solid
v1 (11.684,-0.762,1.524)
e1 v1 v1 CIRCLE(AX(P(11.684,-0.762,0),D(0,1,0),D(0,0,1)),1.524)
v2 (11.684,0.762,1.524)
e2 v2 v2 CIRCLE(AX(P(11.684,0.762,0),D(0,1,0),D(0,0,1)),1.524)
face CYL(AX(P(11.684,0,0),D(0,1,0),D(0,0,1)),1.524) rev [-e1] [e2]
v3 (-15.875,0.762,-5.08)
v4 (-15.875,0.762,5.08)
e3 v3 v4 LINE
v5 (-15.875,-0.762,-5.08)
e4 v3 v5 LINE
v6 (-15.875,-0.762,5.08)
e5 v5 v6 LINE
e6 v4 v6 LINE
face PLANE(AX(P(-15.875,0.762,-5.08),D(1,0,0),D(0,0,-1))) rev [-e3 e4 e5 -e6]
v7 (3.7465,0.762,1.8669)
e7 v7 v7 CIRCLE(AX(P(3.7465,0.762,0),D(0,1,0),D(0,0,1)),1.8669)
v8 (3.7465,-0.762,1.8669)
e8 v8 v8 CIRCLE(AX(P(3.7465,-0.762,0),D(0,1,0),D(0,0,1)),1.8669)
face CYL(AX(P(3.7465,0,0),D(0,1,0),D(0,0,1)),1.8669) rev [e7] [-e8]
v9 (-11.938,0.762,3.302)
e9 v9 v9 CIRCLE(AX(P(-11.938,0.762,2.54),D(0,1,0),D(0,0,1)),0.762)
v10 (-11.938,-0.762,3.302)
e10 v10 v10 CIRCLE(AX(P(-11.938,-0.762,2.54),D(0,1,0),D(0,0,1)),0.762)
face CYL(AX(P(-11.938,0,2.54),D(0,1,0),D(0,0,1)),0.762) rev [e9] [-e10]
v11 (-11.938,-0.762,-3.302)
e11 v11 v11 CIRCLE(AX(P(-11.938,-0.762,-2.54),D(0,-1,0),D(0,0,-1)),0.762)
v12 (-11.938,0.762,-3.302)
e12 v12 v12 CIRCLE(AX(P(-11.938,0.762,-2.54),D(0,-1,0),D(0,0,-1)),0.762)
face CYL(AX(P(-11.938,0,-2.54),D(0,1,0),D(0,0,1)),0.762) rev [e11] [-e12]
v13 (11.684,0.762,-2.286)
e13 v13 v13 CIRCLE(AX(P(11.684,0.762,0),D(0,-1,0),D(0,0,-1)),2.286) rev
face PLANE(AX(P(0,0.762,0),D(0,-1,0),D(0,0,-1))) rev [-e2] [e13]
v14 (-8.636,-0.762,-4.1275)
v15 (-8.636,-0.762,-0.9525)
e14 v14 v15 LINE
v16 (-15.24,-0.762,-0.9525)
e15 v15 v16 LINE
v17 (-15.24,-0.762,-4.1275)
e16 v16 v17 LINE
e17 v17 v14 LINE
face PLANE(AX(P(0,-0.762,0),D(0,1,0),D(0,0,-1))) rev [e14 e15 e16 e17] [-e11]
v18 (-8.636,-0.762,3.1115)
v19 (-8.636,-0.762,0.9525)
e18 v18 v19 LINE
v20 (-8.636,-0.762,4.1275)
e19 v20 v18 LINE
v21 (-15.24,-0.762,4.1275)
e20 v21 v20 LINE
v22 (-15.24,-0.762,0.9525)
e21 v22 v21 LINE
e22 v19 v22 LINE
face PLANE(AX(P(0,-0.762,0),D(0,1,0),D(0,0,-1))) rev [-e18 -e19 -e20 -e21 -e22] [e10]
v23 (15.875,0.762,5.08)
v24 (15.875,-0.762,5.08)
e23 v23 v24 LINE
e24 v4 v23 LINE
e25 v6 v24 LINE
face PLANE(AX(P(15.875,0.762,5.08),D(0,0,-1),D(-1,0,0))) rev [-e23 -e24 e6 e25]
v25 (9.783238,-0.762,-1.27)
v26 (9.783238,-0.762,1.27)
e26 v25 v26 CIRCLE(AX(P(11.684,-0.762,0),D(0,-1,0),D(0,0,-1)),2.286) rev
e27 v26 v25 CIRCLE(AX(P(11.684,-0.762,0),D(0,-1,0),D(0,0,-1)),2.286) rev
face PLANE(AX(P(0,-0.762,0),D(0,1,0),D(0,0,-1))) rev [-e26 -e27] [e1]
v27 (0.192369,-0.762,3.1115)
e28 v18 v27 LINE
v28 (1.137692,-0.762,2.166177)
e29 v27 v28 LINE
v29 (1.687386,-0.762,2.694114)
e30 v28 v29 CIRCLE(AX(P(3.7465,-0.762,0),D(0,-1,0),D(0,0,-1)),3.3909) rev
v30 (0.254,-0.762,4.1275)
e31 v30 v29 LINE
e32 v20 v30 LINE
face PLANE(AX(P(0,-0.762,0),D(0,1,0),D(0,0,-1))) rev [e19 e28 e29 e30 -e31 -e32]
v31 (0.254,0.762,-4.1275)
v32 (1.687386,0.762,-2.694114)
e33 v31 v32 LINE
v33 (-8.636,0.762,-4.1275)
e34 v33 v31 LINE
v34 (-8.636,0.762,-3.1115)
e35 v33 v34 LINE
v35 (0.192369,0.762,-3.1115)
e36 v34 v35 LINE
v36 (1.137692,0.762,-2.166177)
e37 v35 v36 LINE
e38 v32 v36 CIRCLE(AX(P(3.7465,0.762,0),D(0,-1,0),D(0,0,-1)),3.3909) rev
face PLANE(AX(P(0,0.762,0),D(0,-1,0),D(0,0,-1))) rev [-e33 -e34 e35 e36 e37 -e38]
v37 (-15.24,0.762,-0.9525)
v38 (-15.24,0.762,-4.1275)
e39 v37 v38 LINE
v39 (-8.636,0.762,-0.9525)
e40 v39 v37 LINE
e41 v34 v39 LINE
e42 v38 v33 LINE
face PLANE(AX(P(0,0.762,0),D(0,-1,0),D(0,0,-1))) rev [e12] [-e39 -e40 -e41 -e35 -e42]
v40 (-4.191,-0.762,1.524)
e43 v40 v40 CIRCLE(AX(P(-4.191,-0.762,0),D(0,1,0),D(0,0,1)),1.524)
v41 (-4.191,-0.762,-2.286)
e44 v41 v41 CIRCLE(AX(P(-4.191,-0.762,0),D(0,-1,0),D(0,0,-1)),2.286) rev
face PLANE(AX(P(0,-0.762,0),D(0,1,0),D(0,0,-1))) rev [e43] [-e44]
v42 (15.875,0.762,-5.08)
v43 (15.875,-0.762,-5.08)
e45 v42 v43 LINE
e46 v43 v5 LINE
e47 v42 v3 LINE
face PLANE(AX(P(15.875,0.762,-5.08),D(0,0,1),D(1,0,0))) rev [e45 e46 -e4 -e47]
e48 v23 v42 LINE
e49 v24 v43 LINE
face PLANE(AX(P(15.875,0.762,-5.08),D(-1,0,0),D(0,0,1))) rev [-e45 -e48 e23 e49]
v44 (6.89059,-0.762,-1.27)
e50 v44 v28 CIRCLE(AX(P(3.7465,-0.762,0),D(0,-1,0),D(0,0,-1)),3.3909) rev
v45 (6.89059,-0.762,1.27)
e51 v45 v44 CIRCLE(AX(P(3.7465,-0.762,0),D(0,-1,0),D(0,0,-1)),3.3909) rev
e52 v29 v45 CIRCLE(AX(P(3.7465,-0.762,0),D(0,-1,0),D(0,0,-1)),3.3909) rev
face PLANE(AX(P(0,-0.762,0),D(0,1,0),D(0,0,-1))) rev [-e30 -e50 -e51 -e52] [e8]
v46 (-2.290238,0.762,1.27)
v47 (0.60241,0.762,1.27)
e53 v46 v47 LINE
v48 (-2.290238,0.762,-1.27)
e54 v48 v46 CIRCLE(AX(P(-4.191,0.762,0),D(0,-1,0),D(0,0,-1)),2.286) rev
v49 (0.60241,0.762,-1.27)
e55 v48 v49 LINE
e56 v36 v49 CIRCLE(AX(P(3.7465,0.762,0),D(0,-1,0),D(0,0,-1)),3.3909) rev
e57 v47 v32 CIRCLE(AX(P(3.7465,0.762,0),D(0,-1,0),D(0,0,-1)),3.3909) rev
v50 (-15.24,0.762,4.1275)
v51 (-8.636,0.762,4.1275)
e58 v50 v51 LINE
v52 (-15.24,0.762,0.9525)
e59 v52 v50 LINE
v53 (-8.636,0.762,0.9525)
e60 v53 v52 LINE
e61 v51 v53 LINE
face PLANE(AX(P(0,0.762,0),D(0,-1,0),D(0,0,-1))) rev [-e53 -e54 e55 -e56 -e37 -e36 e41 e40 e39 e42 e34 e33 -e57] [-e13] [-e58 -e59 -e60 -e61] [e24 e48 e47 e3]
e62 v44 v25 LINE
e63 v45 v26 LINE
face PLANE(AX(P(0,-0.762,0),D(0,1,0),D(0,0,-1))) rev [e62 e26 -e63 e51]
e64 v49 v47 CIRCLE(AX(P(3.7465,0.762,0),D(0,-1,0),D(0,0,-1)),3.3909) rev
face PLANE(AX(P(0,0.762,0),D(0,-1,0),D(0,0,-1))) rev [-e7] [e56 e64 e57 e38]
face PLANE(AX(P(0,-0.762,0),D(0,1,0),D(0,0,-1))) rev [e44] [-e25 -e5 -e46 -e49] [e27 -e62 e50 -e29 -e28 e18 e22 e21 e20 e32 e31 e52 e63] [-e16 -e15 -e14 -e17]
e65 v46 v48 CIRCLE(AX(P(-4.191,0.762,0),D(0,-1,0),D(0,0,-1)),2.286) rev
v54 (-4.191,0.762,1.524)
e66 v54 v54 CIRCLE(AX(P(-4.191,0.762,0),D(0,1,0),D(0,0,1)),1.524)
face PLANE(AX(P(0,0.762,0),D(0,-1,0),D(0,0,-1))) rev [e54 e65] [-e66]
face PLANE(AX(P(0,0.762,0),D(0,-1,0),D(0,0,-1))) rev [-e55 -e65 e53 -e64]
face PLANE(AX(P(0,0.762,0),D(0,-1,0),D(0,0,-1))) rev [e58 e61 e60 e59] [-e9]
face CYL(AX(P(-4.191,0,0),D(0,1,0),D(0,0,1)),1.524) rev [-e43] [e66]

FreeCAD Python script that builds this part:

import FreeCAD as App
import Part
import Sketcher
Q = App.Units.Quantity

doc = App.newDocument("Part")
body = doc.addObject("PartDesign::Body", "Body")

sketch1 = body.newObject("Sketcher::SketchObject", "Sketch")
sketch1.AttachmentSupport = (doc.getObject("XZ_Plane"), [""])
sketch1.MapMode = "FlatFace"
sketch1.addGeometry(Part.LineSegment(App.Vector(-16, -5, 0), App.Vector(-16, 5, 0)), False)
sketch1.addGeometry(Part.LineSegment(App.Vector(-16, 5, 0), App.Vector(16, 5, 0)), False)
sketch1.addGeometry(Part.LineSegment(App.Vector(16, 5, 0), App.Vector(16, -5, 0)), False)
sketch1.addGeometry(Part.LineSegment(App.Vector(16, -5, 0), App.Vector(-16, -5, 0)), False)
sketch1.addConstraint(Sketcher.Constraint("Coincident", 0, 2, 1, 1))
sketch1.addConstraint(Sketcher.Constraint("Coincident", 1, 2, 2, 1))
sketch1.addConstraint(Sketcher.Constraint("Coincident", 2, 2, 3, 1))
sketch1.addConstraint(Sketcher.Constraint("Coincident", 3, 2, 0, 1))
sketch1.addConstraint(Sketcher.Constraint("Vertical", 0))
sketch1.addConstraint(Sketcher.Constraint("Horizontal", 1))
sketch1.addConstraint(Sketcher.Constraint("Vertical", 2))
sketch1.addConstraint(Sketcher.Constraint("Horizontal", 3))
sketch1.addConstraint(Sketcher.Constraint("Symmetric", 0, 2, 2, 2, -1, 1))
sketch1.addConstraint(Sketcher.Constraint("DistanceY", 0, 1, 0, 2, Q("0.4 in")))
sketch1.addConstraint(Sketcher.Constraint("DistanceX", 1, 1, 1, 2, Q("1.25 in")))
pad1 = body.newObject("PartDesign::Pad", "Pad")
pad1.Profile = sketch1
pad1.Length = Q("0.03 in")
pad1.Reversed = True

sketch2 = body.newObject("Sketcher::SketchObject", "Sketch001")
sketch2.AttachmentSupport = (doc.getObject("XZ_Plane"), [""])
sketch2.MapMode = "FlatFace"
sketch2.AttachmentOffset = App.Placement(App.Vector(0, 0, -0.03 * 25.4), App.Rotation())
sketch2.addGeometry(Part.Circle(App.Vector(-4.2, 0, 0), App.Vector(0, 0, 1), 1.5), False)
sketch2.addGeometry(Part.Circle(App.Vector(3.7, 0, 0), App.Vector(0, 0, 1), 1.9), False)
sketch2.addGeometry(Part.Circle(App.Vector(11.7, 0, 0), App.Vector(0, 0, 1), 1.5), False)
sketch2.addConstraint(Sketcher.Constraint("Equal", 0, 2))
sketch2.addConstraint(Sketcher.Constraint("PointOnObject", 0, 3, -1))
sketch2.addConstraint(Sketcher.Constraint("PointOnObject", 1, 3, -1))
sketch2.addConstraint(Sketcher.Constraint("PointOnObject", 2, 3, -1))
sketch2.addConstraint(Sketcher.Constraint("Diameter", 0, Q("0.12 in")))
sketch2.addConstraint(Sketcher.Constraint("Diameter", 1, Q("0.147 in")))
sketch2.addConstraint(Sketcher.Constraint("DistanceX", -1, 1, 2, 3, Q("0.46 in")))
sketch2.addConstraint(Sketcher.Constraint("DistanceX", 0, 3, -1, 1, Q("0.165 in")))
sketch2.addConstraint(Sketcher.Constraint("DistanceX", 0, 3, 1, 3, Q("0.3125 in")))
pocket1 = body.newObject("PartDesign::Pocket", "Pocket")
pocket1.Profile = sketch2
pocket1.Type = "ThroughAll"
pocket1.Reversed = True

sketch3 = body.newObject("Sketcher::SketchObject", "Sketch002")
sketch3.AttachmentSupport = (doc.getObject("XZ_Plane"), [""])
sketch3.MapMode = "FlatFace"
sketch3.AttachmentOffset = App.Placement(App.Vector(0, 0, -0.03 * 25.4), App.Rotation())
sketch3.addGeometry(Part.Circle(App.Vector(-11.9, 2.5, 0), App.Vector(0, 0, 1), 0.8), False)
sketch3.addConstraint(Sketcher.Constraint("Diameter", 0, Q("0.06 in")))
sketch3.addConstraint(Sketcher.Constraint("DistanceY", -1, 1, 0, 3, Q("0.1 in")))
sketch3.addConstraint(Sketcher.Constraint("DistanceX", 0, 3, -1, 1, Q("0.47 in")))
pocket2 = body.newObject("PartDesign::Pocket", "Pocket001")
pocket2.Profile = sketch3
pocket2.Type = "ThroughAll"
pocket2.Reversed = True
doc.recompute()

mirrored = body.newObject("PartDesign::Mirrored", "Mirrored")
mirrored.Originals = [pocket2]
mirrored.MirrorPlane = (doc.getObject("XY_Plane"), [""])
body.Tip = mirrored
body2 = doc.addObject("PartDesign::Body", "Body001")
doc.recompute()

body2.BaseFeature = body
doc.recompute()

mirroring = doc.addObject("Part::Mirroring", "Mirroring")
mirroring.Source = body
mirroring.Base = App.Vector(0, 0, 0)
mirroring.Normal = App.Vector(0, 1, 0)
body3 = doc.addObject("PartDesign::Body", "Body002")
body3.BaseFeature = mirroring
boolean = body2.newObject("PartDesign::Boolean", "Boolean")
boolean.Type = "Fuse"
boolean.addObjects([body3])
doc.recompute()
mirroring.Visibility = False

doc.recompute()
